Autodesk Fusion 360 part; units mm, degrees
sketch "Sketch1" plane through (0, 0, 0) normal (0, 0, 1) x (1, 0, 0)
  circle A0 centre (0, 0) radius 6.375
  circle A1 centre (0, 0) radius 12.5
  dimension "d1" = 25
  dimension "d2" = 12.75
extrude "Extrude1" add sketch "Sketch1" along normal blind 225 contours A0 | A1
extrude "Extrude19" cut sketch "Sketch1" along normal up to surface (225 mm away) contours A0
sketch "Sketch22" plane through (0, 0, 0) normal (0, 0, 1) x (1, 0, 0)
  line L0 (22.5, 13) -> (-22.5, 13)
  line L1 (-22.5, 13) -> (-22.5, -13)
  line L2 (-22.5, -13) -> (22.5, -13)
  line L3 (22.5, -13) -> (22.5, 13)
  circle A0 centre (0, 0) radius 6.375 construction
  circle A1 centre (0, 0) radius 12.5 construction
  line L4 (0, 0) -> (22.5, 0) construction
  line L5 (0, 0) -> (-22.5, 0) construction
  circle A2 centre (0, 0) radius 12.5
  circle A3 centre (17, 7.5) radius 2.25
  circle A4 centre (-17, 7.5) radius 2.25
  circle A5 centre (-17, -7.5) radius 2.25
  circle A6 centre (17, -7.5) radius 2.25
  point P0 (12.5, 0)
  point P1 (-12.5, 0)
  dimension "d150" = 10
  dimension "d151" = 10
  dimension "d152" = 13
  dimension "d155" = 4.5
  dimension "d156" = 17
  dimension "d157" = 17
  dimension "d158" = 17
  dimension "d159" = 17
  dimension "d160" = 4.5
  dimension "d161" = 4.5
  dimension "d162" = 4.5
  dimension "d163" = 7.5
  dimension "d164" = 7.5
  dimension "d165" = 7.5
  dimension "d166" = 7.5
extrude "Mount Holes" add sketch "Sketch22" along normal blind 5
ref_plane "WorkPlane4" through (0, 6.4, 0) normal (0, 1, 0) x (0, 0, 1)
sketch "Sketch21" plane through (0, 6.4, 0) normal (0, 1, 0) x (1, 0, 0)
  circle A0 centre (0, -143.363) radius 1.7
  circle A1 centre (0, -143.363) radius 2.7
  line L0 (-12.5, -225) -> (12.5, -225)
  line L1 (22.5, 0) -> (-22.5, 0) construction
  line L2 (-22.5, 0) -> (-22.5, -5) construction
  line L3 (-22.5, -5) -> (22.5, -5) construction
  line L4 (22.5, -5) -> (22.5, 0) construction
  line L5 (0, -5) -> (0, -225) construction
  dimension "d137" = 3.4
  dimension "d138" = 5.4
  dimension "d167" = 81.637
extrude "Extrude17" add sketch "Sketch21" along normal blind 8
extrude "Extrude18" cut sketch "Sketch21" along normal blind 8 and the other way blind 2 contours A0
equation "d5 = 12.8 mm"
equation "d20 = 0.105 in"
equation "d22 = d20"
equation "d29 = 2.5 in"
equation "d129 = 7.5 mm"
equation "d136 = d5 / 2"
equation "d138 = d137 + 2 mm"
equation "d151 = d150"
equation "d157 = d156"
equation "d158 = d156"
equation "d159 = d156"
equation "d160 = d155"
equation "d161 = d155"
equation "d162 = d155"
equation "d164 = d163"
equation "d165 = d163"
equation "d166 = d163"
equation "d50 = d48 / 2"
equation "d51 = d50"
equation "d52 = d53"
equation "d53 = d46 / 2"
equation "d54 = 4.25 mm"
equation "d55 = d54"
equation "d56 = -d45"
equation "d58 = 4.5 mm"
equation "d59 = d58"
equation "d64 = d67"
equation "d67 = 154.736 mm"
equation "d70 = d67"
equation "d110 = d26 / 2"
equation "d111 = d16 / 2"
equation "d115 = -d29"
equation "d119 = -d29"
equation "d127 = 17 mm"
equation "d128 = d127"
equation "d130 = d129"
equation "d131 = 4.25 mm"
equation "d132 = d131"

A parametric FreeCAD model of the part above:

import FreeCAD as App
import Part
import Sketcher

V = App.Vector

doc = App.newDocument("Part")
body = doc.addObject("PartDesign::Body", "Body")

# Sketch on XY plane
sketch1 = body.newObject("Sketcher::SketchObject", "Sketch")
sketch1.AttachmentSupport = (doc.getObject("XY_Plane"), [""])
sketch1.MapMode = "FlatFace"
sketch1.addGeometry(Part.Circle(V(0, 0, 0), V(0, 0, 1), 12), False)
sketch1.addConstraint([
    Sketcher.Constraint("Coincident", 0, 3, -1, 1),
    Sketcher.Constraint("Diameter", 0, 25.0),
])
pad1 = body.newObject("PartDesign::Pad", "Pad")
pad1.Profile = sketch1
pad1.Length = 225

# Sketch on XY plane
sketch2 = body.newObject("Sketcher::SketchObject", "Sketch001")
sketch2.AttachmentSupport = (doc.getObject("XY_Plane"), [""])
sketch2.MapMode = "FlatFace"
sketch2.addGeometry(Part.Circle(V(0, 0, 0), V(0, 0, 1), 6), False)
sketch2.addConstraint([
    Sketcher.Constraint("Coincident", 0, 3, -1, 1),
    Sketcher.Constraint("Diameter", 0, 12.75),
])
pocket1 = body.newObject("PartDesign::Pocket", "Pocket")
pocket1.Profile = sketch2
pocket1.Length = 225
pocket1.Reversed = True

# Sketch on XY plane
sketch3 = body.newObject("Sketcher::SketchObject", "Sketch002")
sketch3.AttachmentSupport = (doc.getObject("XY_Plane"), [""])
sketch3.MapMode = "FlatFace"
sketch3.addGeometry([
    Part.LineSegment(V(22.5, -13, 0), V(22.5, 13, 0)),  # 0
    Part.LineSegment(V(22.5, 13, 0), V(-22.5, 13, 0)),  # 1
    Part.LineSegment(V(-22.5, 13, 0), V(-22.5, -13, 0)),  # 2
    Part.LineSegment(V(-22.5, -13, 0), V(22.5, -13, 0)),  # 3
    Part.Circle(V(-17, -7.5, 0), V(0, 0, 1), 2.2),  # 4
    Part.Circle(V(17, -7.5, 0), V(0, 0, 1), 2.2),  # 5
    Part.Circle(V(-17, 7.5, 0), V(0, 0, 1), 2.2),  # 6
    Part.Circle(V(0, 0, 0), V(0, 0, 1), 12.5),  # 7
    Part.Circle(V(17, 7.5, 0), V(0, 0, 1), 2.2),  # 8
], False)
sketch3.addConstraint([
    Sketcher.Constraint("Coincident", 0, 2, 1, 1),
    Sketcher.Constraint("Coincident", 1, 2, 2, 1),
    Sketcher.Constraint("Coincident", 2, 2, 3, 1),
    Sketcher.Constraint("Coincident", 3, 2, 0, 1),
    Sketcher.Constraint("Vertical", 0),
    Sketcher.Constraint("Horizontal", 1),
    Sketcher.Constraint("Vertical", 2),
    Sketcher.Constraint("Horizontal", 3),
    Sketcher.Constraint("Coincident", 7, 3, -1, 1),
    Sketcher.Constraint("Equal", 4, 5),
    Sketcher.Constraint("Equal", 5, 6),
    Sketcher.Constraint("Equal", 6, 8),
    Sketcher.Constraint("Symmetric", 5, 3, 6, 3, -1, 1),
    Sketcher.Constraint("Symmetric", 4, 3, 8, 3, -1, 1),
    Sketcher.Constraint("Symmetric", 0, 2, 2, 2, -1, 1),
    Sketcher.Constraint("Symmetric", 4, 3, 5, 3, -2),
    Sketcher.Constraint("Diameter", 4, 4.5),
    Sketcher.Constraint("Diameter", 7, 25.0),
    Sketcher.Constraint("DistanceX", 4, 3, -1, 1, 17.0),
    Sketcher.Constraint("DistanceY", -1, 1, 0, 2, 13.0),
    Sketcher.Constraint("DistanceY", 4, 3, -1, 1, 7.5),
    Sketcher.Constraint("DistanceX", 1, 2, 1, 1, 45.0),
])
pad2 = body.newObject("PartDesign::Pad", "Pad001")
pad2.Profile = sketch3
pad2.Length = 5

# Sketch on XZ plane
sketch4 = body.newObject("Sketcher::SketchObject", "Sketch003")
sketch4.AttachmentSupport = (doc.getObject("XZ_Plane"), [""])
sketch4.MapMode = "FlatFace"
sketch4.AttachmentOffset = App.Placement(V(0, 0, -6.4), App.Rotation())
sketch4.addGeometry([
    Part.Circle(V(0, 143.4, 0), V(0, 0, 1), 2.7),
    Part.Circle(V(0, 143.4, 0), V(0, 0, 1), 1.7),
], False)
sketch4.addConstraint([
    Sketcher.Constraint("Coincident", 1, 3, 0, 3),
    Sketcher.Constraint("PointOnObject", 0, 3, -2),
    Sketcher.Constraint("Diameter", 0, 5.4),
    Sketcher.Constraint("Diameter", 1, 3.4),
    Sketcher.Constraint("DistanceY", -1, 1, 0, 3, 143.363),
])
pad3 = body.newObject("PartDesign::Pad", "Pad002")
pad3.Profile = sketch4
pad3.Length = 8
pad3.Reversed = True

# Sketch on XZ plane
sketch5 = body.newObject("Sketcher::SketchObject", "Sketch004")
sketch5.AttachmentSupport = (doc.getObject("XZ_Plane"), [""])
sketch5.MapMode = "FlatFace"
sketch5.AttachmentOffset = App.Placement(V(0, 0, -6.4), App.Rotation())
sketch5.addGeometry(Part.Circle(V(0, 143.4, 0), V(0, 0, 1), 1.7), False)
sketch5.addConstraint([
    Sketcher.Constraint("PointOnObject", 0, 3, -2),
    Sketcher.Constraint("Diameter", 0, 3.4),
    Sketcher.Constraint("DistanceY", -1, 1, 0, 3, 143.363),
])
pocket2 = body.newObject("PartDesign::Pocket", "Pocket001")
pocket2.Profile = sketch5
pocket2.Type = "TwoLengths"
pocket2.Length = 8
pocket2.Length2 = 2

doc.recompute()
